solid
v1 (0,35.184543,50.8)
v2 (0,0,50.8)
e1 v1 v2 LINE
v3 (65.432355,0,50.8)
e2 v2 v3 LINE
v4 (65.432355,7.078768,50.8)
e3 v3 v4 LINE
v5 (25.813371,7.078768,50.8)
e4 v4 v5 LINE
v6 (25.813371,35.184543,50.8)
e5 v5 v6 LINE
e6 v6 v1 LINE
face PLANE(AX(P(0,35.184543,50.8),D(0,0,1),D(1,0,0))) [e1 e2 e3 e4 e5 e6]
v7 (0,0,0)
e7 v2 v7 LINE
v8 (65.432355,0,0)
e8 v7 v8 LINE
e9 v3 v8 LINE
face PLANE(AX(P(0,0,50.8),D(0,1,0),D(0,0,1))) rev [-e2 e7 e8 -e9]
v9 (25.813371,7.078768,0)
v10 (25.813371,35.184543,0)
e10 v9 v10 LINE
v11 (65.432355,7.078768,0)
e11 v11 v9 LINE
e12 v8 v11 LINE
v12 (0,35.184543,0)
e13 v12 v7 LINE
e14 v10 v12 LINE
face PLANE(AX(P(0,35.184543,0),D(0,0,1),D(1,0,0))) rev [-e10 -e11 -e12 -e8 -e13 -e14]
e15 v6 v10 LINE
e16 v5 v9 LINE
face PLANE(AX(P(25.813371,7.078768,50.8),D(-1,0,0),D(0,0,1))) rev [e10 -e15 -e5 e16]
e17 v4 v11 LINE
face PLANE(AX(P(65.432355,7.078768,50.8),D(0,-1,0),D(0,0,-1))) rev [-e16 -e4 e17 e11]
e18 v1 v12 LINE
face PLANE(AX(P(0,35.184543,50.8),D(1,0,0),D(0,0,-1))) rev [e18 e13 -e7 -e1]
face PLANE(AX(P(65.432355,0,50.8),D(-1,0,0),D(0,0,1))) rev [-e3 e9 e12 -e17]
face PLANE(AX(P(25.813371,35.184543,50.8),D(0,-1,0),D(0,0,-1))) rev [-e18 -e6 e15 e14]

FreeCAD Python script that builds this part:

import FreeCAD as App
import Part
import Sketcher

V = App.Vector
Q = App.Units.Quantity


def add_polygon(sketch, points):
    """Adds a closed chain of lines whose ends are joined by coincident constraints."""
    first, n = sketch.GeometryCount, len(points)
    for a, b in zip(points, points[1:] + points[:1]):
        sketch.addGeometry(Part.LineSegment(App.Vector(*a, 0), App.Vector(*b, 0)), False)
    for i in range(n):
        sketch.addConstraint(Sketcher.Constraint("Coincident", first + i, 2, first + (i + 1) % n, 1))

doc = App.newDocument("Part")
body = doc.addObject("PartDesign::Body", "Body")

# Sketch on XY plane
sketch1 = body.newObject("Sketcher::SketchObject", "Sketch")
sketch1.AttachmentSupport = (doc.getObject("XY_Plane"), [""])
sketch1.MapMode = "FlatFace"
add_polygon(sketch1, [(0, 35), (0, 0), (65, 0), (65, 7), (26, 7), (26, 35)])  # lines 0-5
sketch1.addConstraint(Sketcher.Constraint("Vertical", 0))
sketch1.addConstraint(Sketcher.Constraint("Horizontal", 1))
sketch1.addConstraint(Sketcher.Constraint("Vertical", 2))
sketch1.addConstraint(Sketcher.Constraint("Horizontal", 3))
sketch1.addConstraint(Sketcher.Constraint("Vertical", 4))
sketch1.addConstraint(Sketcher.Constraint("Horizontal", 5))
sketch1.addConstraint(Sketcher.Constraint("Coincident", 0, 2, -1, 1))
sketch1.addConstraint(Sketcher.Constraint("DistanceX", 5, 2, 5, 1, Q("25.813371 mm")))
sketch1.addConstraint(Sketcher.Constraint("DistanceX", 1, 1, 1, 2, Q("65.432355 mm")))
sketch1.addConstraint(Sketcher.Constraint("DistanceY", 0, 2, 0, 1, Q("35.184543 mm")))
sketch1.addConstraint(Sketcher.Constraint("DistanceY", 2, 1, 2, 2, Q("7.078768 mm")))
pad1 = body.newObject("PartDesign::Pad", "Pad")
pad1.Profile = sketch1
pad1.Length = Q("2 in")

doc.recompute()
